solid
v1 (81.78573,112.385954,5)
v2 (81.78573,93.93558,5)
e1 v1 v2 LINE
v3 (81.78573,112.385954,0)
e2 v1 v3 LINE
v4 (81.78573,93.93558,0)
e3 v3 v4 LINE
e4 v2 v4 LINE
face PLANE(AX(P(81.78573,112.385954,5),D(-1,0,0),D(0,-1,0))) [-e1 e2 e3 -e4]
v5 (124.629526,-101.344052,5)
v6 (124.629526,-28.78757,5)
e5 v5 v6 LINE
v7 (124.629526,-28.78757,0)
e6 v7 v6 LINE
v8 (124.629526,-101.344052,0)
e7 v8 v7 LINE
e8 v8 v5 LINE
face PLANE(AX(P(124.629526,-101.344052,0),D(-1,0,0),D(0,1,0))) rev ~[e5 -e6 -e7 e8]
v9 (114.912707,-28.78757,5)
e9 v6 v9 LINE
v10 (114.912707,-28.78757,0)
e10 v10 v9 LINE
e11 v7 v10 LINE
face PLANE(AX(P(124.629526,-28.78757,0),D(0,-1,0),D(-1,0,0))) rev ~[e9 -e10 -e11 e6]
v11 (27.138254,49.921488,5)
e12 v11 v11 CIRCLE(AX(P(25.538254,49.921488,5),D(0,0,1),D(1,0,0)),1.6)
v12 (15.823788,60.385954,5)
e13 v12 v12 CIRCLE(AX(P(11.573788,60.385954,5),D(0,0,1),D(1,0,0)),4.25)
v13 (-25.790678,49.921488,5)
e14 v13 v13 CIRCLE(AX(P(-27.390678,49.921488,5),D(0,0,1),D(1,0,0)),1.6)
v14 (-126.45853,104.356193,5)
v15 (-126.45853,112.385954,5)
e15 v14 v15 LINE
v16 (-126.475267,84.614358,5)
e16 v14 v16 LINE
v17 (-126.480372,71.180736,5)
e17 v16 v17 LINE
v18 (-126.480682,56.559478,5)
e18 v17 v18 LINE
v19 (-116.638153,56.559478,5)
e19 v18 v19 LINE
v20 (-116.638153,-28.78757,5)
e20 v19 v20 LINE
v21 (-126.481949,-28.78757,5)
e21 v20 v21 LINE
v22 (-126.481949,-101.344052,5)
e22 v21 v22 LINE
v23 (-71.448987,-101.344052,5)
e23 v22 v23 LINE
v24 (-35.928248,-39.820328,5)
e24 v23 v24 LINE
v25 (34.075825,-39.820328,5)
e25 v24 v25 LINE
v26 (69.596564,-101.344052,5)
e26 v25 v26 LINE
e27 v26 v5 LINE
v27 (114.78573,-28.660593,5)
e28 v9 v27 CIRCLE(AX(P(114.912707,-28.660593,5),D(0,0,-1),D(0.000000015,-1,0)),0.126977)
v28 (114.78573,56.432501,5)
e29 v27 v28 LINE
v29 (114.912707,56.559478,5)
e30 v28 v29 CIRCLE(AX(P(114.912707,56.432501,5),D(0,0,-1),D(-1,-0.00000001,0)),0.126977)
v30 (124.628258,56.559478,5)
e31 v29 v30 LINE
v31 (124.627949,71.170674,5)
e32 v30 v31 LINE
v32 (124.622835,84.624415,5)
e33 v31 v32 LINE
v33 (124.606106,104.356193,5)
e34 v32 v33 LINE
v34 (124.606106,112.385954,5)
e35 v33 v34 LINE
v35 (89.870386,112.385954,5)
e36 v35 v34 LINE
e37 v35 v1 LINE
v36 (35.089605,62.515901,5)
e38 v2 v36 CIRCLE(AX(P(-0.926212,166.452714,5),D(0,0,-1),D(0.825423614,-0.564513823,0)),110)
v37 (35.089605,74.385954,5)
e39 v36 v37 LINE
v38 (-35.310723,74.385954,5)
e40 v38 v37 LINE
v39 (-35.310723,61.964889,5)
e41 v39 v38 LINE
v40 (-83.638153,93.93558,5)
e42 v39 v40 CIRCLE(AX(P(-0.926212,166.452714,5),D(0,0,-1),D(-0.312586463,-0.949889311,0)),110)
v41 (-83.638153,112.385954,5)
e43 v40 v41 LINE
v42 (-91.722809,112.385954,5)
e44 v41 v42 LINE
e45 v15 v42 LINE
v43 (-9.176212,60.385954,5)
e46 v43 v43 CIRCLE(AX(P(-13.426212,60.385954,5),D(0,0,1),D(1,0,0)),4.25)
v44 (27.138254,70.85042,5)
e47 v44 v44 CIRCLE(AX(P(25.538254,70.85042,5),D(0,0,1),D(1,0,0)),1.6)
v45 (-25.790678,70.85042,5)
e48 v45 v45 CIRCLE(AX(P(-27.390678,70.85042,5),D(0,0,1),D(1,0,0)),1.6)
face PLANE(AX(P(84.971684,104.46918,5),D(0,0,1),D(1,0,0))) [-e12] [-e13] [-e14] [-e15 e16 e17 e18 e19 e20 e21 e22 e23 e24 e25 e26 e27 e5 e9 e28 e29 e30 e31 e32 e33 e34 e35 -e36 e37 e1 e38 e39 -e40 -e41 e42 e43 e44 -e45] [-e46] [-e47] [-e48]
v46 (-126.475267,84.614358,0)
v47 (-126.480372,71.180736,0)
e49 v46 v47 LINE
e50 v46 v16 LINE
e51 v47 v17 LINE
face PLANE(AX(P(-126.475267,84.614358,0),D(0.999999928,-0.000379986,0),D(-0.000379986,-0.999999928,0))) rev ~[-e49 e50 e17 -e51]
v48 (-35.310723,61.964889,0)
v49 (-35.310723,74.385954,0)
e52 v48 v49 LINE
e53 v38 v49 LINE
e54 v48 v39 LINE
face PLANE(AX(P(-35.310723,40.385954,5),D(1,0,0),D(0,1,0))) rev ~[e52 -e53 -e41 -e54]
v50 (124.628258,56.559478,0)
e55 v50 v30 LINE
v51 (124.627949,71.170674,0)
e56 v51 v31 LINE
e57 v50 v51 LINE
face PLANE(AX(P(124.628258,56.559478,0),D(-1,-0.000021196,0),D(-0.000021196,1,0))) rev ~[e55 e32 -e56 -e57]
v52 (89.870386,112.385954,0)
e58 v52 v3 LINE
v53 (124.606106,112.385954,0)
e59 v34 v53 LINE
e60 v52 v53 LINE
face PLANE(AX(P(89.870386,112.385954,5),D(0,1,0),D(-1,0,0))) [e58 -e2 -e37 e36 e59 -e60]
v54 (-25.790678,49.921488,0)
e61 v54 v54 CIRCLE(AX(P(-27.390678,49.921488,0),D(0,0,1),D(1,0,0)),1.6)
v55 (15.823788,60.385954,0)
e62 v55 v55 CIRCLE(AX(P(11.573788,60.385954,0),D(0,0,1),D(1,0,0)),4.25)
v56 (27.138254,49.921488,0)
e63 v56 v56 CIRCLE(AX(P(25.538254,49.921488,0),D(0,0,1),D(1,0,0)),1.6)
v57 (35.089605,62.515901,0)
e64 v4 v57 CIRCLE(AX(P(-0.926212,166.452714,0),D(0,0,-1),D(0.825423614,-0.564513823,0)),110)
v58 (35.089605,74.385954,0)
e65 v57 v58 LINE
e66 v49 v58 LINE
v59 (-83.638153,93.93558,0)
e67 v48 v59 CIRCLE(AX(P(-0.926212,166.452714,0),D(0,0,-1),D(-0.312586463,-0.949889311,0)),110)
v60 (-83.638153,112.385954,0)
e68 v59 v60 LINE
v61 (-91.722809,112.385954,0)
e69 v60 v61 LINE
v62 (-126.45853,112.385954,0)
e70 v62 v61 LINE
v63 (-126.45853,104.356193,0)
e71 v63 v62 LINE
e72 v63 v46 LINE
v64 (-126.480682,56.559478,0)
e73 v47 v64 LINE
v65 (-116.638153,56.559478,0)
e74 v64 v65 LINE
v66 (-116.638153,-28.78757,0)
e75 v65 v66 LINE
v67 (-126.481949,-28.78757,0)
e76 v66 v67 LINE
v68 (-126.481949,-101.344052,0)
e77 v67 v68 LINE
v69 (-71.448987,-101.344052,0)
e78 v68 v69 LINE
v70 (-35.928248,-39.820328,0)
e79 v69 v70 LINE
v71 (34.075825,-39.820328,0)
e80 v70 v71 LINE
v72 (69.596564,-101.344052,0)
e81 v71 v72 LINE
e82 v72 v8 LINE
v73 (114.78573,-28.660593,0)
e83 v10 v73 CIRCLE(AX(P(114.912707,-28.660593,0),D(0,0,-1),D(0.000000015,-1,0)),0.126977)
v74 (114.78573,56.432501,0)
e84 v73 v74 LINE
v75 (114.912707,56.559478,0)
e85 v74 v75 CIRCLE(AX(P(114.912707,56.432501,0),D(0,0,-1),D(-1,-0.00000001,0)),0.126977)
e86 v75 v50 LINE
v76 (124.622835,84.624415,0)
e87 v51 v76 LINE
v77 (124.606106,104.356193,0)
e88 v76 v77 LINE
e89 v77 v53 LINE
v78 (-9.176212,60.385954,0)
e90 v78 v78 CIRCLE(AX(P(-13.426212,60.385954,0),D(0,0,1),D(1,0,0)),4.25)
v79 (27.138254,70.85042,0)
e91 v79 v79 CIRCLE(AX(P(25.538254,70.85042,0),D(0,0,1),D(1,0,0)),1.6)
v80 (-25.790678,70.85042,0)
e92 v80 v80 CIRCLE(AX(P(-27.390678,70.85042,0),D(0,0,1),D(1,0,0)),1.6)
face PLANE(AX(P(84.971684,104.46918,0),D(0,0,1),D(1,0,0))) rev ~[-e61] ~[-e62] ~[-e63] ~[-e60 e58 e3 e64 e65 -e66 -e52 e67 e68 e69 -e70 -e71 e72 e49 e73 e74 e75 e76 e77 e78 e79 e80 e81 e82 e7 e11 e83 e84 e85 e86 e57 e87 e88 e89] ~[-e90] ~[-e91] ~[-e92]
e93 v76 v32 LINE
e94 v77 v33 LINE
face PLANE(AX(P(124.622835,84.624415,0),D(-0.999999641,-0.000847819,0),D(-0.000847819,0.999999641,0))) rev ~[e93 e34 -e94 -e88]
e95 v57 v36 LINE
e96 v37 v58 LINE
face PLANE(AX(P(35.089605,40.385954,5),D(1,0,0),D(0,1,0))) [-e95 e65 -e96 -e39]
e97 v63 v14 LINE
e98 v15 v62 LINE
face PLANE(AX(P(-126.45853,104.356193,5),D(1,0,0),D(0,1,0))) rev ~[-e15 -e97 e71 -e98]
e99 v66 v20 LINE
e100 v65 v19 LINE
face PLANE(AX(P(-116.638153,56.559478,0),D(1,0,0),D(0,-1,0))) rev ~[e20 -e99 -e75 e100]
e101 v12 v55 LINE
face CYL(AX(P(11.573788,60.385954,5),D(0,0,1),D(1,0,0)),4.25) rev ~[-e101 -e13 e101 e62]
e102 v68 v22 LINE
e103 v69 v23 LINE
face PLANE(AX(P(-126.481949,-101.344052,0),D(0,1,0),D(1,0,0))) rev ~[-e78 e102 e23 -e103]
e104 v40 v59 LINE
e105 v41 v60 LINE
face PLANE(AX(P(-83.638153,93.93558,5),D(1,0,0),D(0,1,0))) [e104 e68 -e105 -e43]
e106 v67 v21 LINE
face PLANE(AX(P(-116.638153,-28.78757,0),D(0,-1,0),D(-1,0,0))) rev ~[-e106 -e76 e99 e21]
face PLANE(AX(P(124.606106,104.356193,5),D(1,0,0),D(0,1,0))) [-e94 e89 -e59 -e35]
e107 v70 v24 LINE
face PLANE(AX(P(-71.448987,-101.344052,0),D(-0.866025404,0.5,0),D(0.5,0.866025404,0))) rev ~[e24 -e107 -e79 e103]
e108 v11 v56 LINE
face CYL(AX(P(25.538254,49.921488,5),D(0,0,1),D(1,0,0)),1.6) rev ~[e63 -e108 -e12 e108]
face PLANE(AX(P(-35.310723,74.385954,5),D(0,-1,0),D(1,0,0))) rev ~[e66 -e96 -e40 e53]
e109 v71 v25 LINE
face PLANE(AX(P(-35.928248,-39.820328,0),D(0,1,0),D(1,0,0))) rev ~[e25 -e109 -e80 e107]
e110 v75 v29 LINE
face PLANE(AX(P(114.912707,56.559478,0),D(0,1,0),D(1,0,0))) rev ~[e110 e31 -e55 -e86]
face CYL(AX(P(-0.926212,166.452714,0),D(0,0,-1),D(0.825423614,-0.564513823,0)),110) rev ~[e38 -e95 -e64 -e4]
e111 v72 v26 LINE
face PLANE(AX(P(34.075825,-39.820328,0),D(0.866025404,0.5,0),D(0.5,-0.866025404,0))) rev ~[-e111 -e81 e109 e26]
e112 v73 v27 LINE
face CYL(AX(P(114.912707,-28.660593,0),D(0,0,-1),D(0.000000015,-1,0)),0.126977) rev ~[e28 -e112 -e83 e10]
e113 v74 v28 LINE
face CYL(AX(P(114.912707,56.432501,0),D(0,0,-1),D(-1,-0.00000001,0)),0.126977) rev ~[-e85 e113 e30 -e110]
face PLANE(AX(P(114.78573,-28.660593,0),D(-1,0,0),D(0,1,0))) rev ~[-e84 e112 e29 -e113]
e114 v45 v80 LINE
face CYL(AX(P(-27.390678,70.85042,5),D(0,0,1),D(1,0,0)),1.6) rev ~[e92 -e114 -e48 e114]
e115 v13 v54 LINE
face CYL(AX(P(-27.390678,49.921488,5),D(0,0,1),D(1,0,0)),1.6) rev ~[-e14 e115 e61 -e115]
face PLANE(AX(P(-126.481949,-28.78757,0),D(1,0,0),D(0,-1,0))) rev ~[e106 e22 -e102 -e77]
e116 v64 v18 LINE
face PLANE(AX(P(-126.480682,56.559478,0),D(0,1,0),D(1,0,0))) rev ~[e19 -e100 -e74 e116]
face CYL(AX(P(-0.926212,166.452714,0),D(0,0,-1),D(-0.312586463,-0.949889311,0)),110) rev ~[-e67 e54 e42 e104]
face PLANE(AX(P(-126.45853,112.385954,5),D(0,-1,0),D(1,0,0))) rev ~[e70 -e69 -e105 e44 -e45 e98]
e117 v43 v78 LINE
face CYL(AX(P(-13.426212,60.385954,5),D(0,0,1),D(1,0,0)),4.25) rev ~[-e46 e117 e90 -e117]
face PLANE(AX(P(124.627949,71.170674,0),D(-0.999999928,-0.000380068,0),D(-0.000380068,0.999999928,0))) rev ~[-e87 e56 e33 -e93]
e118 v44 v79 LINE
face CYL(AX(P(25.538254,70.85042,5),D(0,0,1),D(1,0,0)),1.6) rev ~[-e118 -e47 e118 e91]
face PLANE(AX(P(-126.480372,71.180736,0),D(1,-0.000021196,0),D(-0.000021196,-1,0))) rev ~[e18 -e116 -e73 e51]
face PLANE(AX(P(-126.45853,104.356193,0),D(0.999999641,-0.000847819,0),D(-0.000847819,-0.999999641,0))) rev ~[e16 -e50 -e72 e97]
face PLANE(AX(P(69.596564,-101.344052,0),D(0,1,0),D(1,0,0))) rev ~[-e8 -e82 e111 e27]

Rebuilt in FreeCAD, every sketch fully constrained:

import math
import FreeCAD as App
import Part
import Sketcher
from FreeCAD import Vector
Q = App.Units.Quantity


def add_polygon(sketch, points):
    """Adds a closed chain of lines whose ends are joined by coincident constraints."""
    first, n = sketch.GeometryCount, len(points)
    for a, b in zip(points, points[1:] + points[:1]):
        sketch.addGeometry(Part.LineSegment(App.Vector(*a, 0), App.Vector(*b, 0)), False)
    for i in range(n):
        sketch.addConstraint(Sketcher.Constraint("Coincident", first + i, 2, first + (i + 1) % n, 1))

doc = App.newDocument("Part")
body = doc.addObject("PartDesign::Body", "Body")

# Sketch on XY plane
sketch1 = body.newObject("Sketcher::SketchObject", "Sketch")
sketch1.AttachmentSupport = (doc.getObject("XY_Plane"), [""])
sketch1.MapMode = "FlatFace"
sketch1.addGeometry([
    Part.LineSegment(Vector(-91.72, 104.36, 0), Vector(-126.46, 104.36, 0)),  # 0
    Part.LineSegment(Vector(-126.46, 104.36, 0), Vector(-126.48, 84.61, 0)),  # 1
    Part.LineSegment(Vector(-126.48, 84.61, 0), Vector(-126.48, 71.18, 0)),  # 2
    Part.LineSegment(Vector(-126.48, 71.18, 0), Vector(-126.48, 56.56, 0)),  # 3
    Part.LineSegment(Vector(-126.48, 56.56, 0), Vector(-116.64, 56.56, 0)),  # 4
    Part.LineSegment(Vector(-116.64, 56.56, 0), Vector(-116.64, -28.79, 0)),  # 5
    Part.LineSegment(Vector(-116.64, -28.79, 0), Vector(-126.48, -28.79, 0)),  # 6
    Part.LineSegment(Vector(-126.48, -28.79, 0), Vector(-126.48, -101.34, 0)),  # 7
    Part.LineSegment(Vector(-126.48, -101.34, 0), Vector(-71.45, -101.34, 0)),  # 8
    Part.LineSegment(Vector(-71.45, -101.34, 0), Vector(-35.93, -39.82, 0)),  # 9
    Part.LineSegment(Vector(-35.93, -39.82, 0), Vector(34.08, -39.82, 0)),  # 10
    Part.LineSegment(Vector(34.08, -39.82, 0), Vector(69.6, -101.34, 0)),  # 11
    Part.LineSegment(Vector(69.6, -101.34, 0), Vector(124.63, -101.34, 0)),  # 12
    Part.LineSegment(Vector(124.63, -101.34, 0), Vector(124.63, -28.79, 0)),  # 13
    Part.LineSegment(Vector(124.63, -28.79, 0), Vector(114.91, -28.79, 0)),  # 14
    Part.ArcOfCircle(Part.Circle(Vector(114.91, -28.66, 0), Vector(0, 0, 1), 0.13), math.radians(180), math.radians(270)),  # 15
    Part.LineSegment(Vector(114.79, -28.66, 0), Vector(114.79, 56.43, 0)),  # 16
    Part.ArcOfCircle(Part.Circle(Vector(114.91, 56.43, 0), Vector(0, 0, 1), 0.13), math.radians(90), math.radians(180)),  # 17
    Part.LineSegment(Vector(114.91, 56.56, 0), Vector(124.63, 56.56, 0)),  # 18
    Part.LineSegment(Vector(124.63, 56.56, 0), Vector(124.63, 71.17, 0)),  # 19
    Part.LineSegment(Vector(124.63, 71.17, 0), Vector(124.62, 84.62, 0)),  # 20
    Part.LineSegment(Vector(124.62, 84.62, 0), Vector(124.61, 104.36, 0)),  # 21
    Part.LineSegment(Vector(124.61, 104.36, 0), Vector(89.87, 104.36, 0)),  # 22
    Part.ArcOfCircle(Part.Circle(Vector(-0.93, 166.45, 0), Vector(0, 0, 1), 110), math.radians(-71), math.radians(-34)),  # 23
    Part.LineSegment(Vector(35.09, 62.52, 0), Vector(35.09, 40.39, 0)),  # 24
    Part.LineSegment(Vector(35.09, 40.39, 0), Vector(-35.31, 40.39, 0)),  # 25
    Part.LineSegment(Vector(-35.31, 40.39, 0), Vector(-35.31, 61.96, 0)),  # 26
    Part.ArcOfCircle(Part.Circle(Vector(-0.93, 166.45, 0), Vector(0, 0, 1), 110), math.radians(-146), math.radians(-108)),  # 27
], False)
sketch1.addConstraint([
    Sketcher.Constraint("Coincident", 0, 2, 1, 1),
    Sketcher.Constraint("Coincident", 1, 2, 2, 1),
    Sketcher.Constraint("Coincident", 2, 2, 3, 1),
    Sketcher.Constraint("Coincident", 3, 2, 4, 1),
    Sketcher.Constraint("Coincident", 4, 2, 5, 1),
    Sketcher.Constraint("Coincident", 5, 2, 6, 1),
    Sketcher.Constraint("Coincident", 6, 2, 7, 1),
    Sketcher.Constraint("Coincident", 7, 2, 8, 1),
    Sketcher.Constraint("Coincident", 8, 2, 9, 1),
    Sketcher.Constraint("Coincident", 9, 2, 10, 1),
    Sketcher.Constraint("Coincident", 10, 2, 11, 1),
    Sketcher.Constraint("Coincident", 11, 2, 12, 1),
    Sketcher.Constraint("Coincident", 12, 2, 13, 1),
    Sketcher.Constraint("Coincident", 13, 2, 14, 1),
    Sketcher.Constraint("Tangent", 14, 2, 15, 2),
    Sketcher.Constraint("Tangent", 15, 1, 16, 1),
    Sketcher.Constraint("Tangent", 16, 2, 17, 2),
    Sketcher.Constraint("Tangent", 17, 1, 18, 1),
    Sketcher.Constraint("Coincident", 18, 2, 19, 1),
    Sketcher.Constraint("Coincident", 19, 2, 20, 1),
    Sketcher.Constraint("Coincident", 20, 2, 21, 1),
    Sketcher.Constraint("Coincident", 21, 2, 22, 1),
    Sketcher.Constraint("Coincident", 22, 2, 23, 2),
    Sketcher.Constraint("Coincident", 23, 1, 24, 1),
    Sketcher.Constraint("Coincident", 24, 2, 25, 1),
    Sketcher.Constraint("Coincident", 25, 2, 26, 1),
    Sketcher.Constraint("Coincident", 26, 2, 27, 2),
    Sketcher.Constraint("Coincident", 27, 1, 0, 1),
    Sketcher.Constraint("Horizontal", 0),
    Sketcher.Constraint("Horizontal", 4),
    Sketcher.Constraint("Vertical", 5),
    Sketcher.Constraint("Horizontal", 6),
    Sketcher.Constraint("Vertical", 7),
    Sketcher.Constraint("Horizontal", 8),
    Sketcher.Constraint("Horizontal", 10),
    Sketcher.Constraint("Horizontal", 12),
    Sketcher.Constraint("Vertical", 13),
    Sketcher.Constraint("Horizontal", 14),
    Sketcher.Constraint("Vertical", 16),
    Sketcher.Constraint("Horizontal", 18),
    Sketcher.Constraint("Horizontal", 22),
    Sketcher.Constraint("Vertical", 24),
    Sketcher.Constraint("Horizontal", 25),
    Sketcher.Constraint("Vertical", 26),
    Sketcher.Constraint("Coincident", 27, 3, 23, 3),
    Sketcher.Constraint("Equal", 15, 17),
    Sketcher.Constraint("Equal", 23, 27),
    Sketcher.Constraint("Horizontal", 8, 2, 11, 2),
    Sketcher.Constraint("Horizontal", 6, 2, 13, 2),
    Sketcher.Constraint("Horizontal", 4, 2, 17, 1),
    Sketcher.Constraint("Horizontal", 0, 2, 21, 2),
    Sketcher.Constraint("Equal", 8, 12),
    Sketcher.Constraint("Equal", 0, 22),
    Sketcher.Constraint("Equal", 9, 11),
    Sketcher.Constraint("Radius", 23, Q("110 mm")),
    Sketcher.Constraint("Angle", 9, Q("60 deg")),
    Sketcher.Constraint("Radius", 15, Q("0.126977 mm")),
    Sketcher.Constraint("DistanceX", 0, 2, 0, 1, Q("34.73572 mm")),
    Sketcher.Constraint("DistanceX", 4, 1, 4, 2, Q("9.842528 mm")),
    Sketcher.Constraint("DistanceX", 14, 2, 14, 1, Q("9.716819 mm")),
    Sketcher.Constraint("DistanceX", 18, 1, 18, 2, Q("9.715551 mm")),
    Sketcher.Constraint("DistanceY", 5, 2, 5, 1, Q("85.347048 mm")),
    Sketcher.Constraint("DistanceY", 7, 2, 7, 1, Q("72.556482 mm")),
    Sketcher.Constraint("DistanceY", -1, 1, 17, 3, Q("56.432501 mm")),
    Sketcher.Constraint("DistanceY", -1, 1, 23, 1, Q("62.515901 mm")),
    Sketcher.Constraint("DistanceX", 6, 2, 9, 2, Q("90.553701 mm")),
    Sketcher.Constraint("DistanceX", 17, 1, 21, 2, Q("9.693399 mm")),
    Sketcher.Constraint("Distance", 1, Q("19.741842 mm")),
    Sketcher.Constraint("DistanceX", 6, 2, 6, 1, Q("9.843796 mm")),
    Sketcher.Constraint("DistanceX", 8, 1, 8, 2, Q("55.032962 mm")),
    Sketcher.Constraint("DistanceX", 10, 1, 10, 2, Q("70.004073 mm")),
    Sketcher.Constraint("DistanceX", 25, 2, 25, 1, Q("70.400327 mm")),
    Sketcher.Constraint("DistanceY", 24, 2, 24, 1, Q("22.129947 mm")),
    Sketcher.Constraint("DistanceY", 26, 1, 26, 2, Q("21.578935 mm")),
    Sketcher.Constraint("DistanceX", 23, 3, -1, 1, Q("0.926212 mm")),
    Sketcher.Constraint("DistanceX", 0, 2, -1, 1, Q("126.45853 mm")),
    Sketcher.Constraint("DistanceX", 2, 2, -1, 1, Q("126.480372 mm")),
    Sketcher.Constraint("DistanceX", -1, 1, 19, 2, Q("124.627949 mm")),
    Sketcher.Constraint("DistanceY", 19, 2, 20, 2, Q("13.453741 mm")),
    Sketcher.Constraint("DistanceX", 17, 1, 20, 2, Q("9.710128 mm")),
    Sketcher.Constraint("DistanceY", 20, 2, 21, 2, Q("19.731778 mm")),
    Sketcher.Constraint("Distance", 2, Q("13.433623 mm")),
    Sketcher.Constraint("DistanceX", 1, 2, -1, 1, Q("126.475267 mm")),
])
pad1 = body.newObject("PartDesign::Pad", "Pad")
pad1.Profile = sketch1
pad1.Length = 5

# Sketch on XY plane
sketch2 = body.newObject("Sketcher::SketchObject", "Sketch001")
sketch2.AttachmentSupport = (doc.getObject("XY_Plane"), [""])
sketch2.MapMode = "FlatFace"
sketch2.AttachmentOffset = App.Placement(Vector(0, 0, 5), App.Rotation())
add_polygon(sketch2, [(-35.3, 74.4), (-35.3, 40.4), (35.1, 40.4), (35.1, 74.4)])  # lines 0-3
sketch2.addGeometry(Part.Circle(Vector(-27.4, 49.9, 0), Vector(0, 0, 1), 1.6), False)  # 4
sketch2.addGeometry(Part.Circle(Vector(25.5, 49.9, 0), Vector(0, 0, 1), 1.6), False)  # 5
sketch2.addGeometry(Part.Circle(Vector(-13.4, 60.4, 0), Vector(0, 0, 1), 4.2), False)  # 6
sketch2.addGeometry(Part.Circle(Vector(-27.4, 70.9, 0), Vector(0, 0, 1), 1.6), False)  # 7
sketch2.addGeometry(Part.Circle(Vector(11.6, 60.4, 0), Vector(0, 0, 1), 4.2), False)  # 8
sketch2.addGeometry(Part.Circle(Vector(25.5, 70.9, 0), Vector(0, 0, 1), 1.6), False)  # 9
sketch2.addConstraint([
    Sketcher.Constraint("Vertical", 0),
    Sketcher.Constraint("Horizontal", 1),
    Sketcher.Constraint("Vertical", 2),
    Sketcher.Constraint("Horizontal", 3),
    Sketcher.Constraint("Equal", 4, 5),
    Sketcher.Constraint("Equal", 5, 7),
    Sketcher.Constraint("Equal", 6, 8),
    Sketcher.Constraint("Equal", 7, 9),
    Sketcher.Constraint("Horizontal", 4, 3, 5, 3),
    Sketcher.Constraint("Horizontal", 6, 3, 8, 3),
    Sketcher.Constraint("Horizontal", 7, 3, 9, 3),
    Sketcher.Constraint("Vertical", 4, 3, 7, 3),
    Sketcher.Constraint("Vertical", 5, 3, 9, 3),
    Sketcher.Constraint("Diameter", 4, Q("3.2 mm")),
    Sketcher.Constraint("Diameter", 6, Q("8.5 mm")),
    Sketcher.Constraint("DistanceY", 0, 2, 0, 1, Q("34 mm")),
    Sketcher.Constraint("DistanceX", 6, 3, 8, 3, Q("25 mm")),
    Sketcher.Constraint("DistanceY", 0, 2, 6, 3, Q("20 mm")),
    Sketcher.Constraint("DistanceX", 1, 1, 1, 2, Q("70.400327 mm")),
    Sketcher.Constraint("DistanceY", -1, 1, 4, 3, Q("49.921488 mm")),
    Sketcher.Constraint("DistanceX", 6, 3, -1, 1, Q("13.426212 mm")),
    Sketcher.Constraint("DistanceY", -1, 1, 7, 3, Q("70.85042 mm")),
    Sketcher.Constraint("DistanceX", 0, 2, 6, 3, Q("21.884511 mm")),
    Sketcher.Constraint("DistanceX", 5, 3, 1, 2, Q("9.55135 mm")),
    Sketcher.Constraint("DistanceX", 4, 3, -1, 1, Q("27.390678 mm")),
    Sketcher.Constraint("DistanceY", -1, 1, 6, 3, Q("60.385954 mm")),
])
pad2 = body.newObject("PartDesign::Pad", "Pad001")
pad2.Profile = sketch2
pad2.Length = 5
pad2.Reversed = True

# Sketch on XY plane
sketch3 = body.newObject("Sketcher::SketchObject", "Sketch002")
sketch3.AttachmentSupport = (doc.getObject("XY_Plane"), [""])
sketch3.MapMode = "FlatFace"
sketch3.AttachmentOffset = App.Placement(Vector(0, 0, 5), App.Rotation())
add_polygon(sketch3, [(-126, 112), (-126, 104), (-92, 104), (-92, 112)])  # lines 0-3
add_polygon(sketch3, [(90, 112), (90, 104), (125, 104), (125, 112)])  # lines 4-7
sketch3.addConstraint([
    Sketcher.Constraint("Vertical", 0),
    Sketcher.Constraint("Horizontal", 1),
    Sketcher.Constraint("Vertical", 2),
    Sketcher.Constraint("Horizontal", 3),
    Sketcher.Constraint("Vertical", 4),
    Sketcher.Constraint("Horizontal", 5),
    Sketcher.Constraint("Vertical", 6),
    Sketcher.Constraint("Horizontal", 7),
    Sketcher.Constraint("Horizontal", 1, 2, 4, 2),
    Sketcher.Constraint("Horizontal", 3, 2, 6, 2),
    Sketcher.Constraint("Equal", 3, 5),
    Sketcher.Constraint("DistanceX", 1, 1, 1, 2, Q("34.73572 mm")),
    Sketcher.Constraint("DistanceY", 0, 2, 0, 1, Q("8.029761 mm")),
    Sketcher.Constraint("DistanceX", 0, 2, -1, 1, Q("126.45853 mm")),
    Sketcher.Constraint("DistanceY", -1, 1, 0, 2, Q("104.356193 mm")),
    Sketcher.Constraint("DistanceX", -1, 1, 4, 2, Q("89.870386 mm")),
])
pad3 = body.newObject("PartDesign::Pad", "Pad002")
pad3.Profile = sketch3
pad3.Length = 5
pad3.Reversed = True

# Sketch on XY plane
sketch4 = body.newObject("Sketcher::SketchObject", "Sketch003")
sketch4.AttachmentSupport = (doc.getObject("XY_Plane"), [""])
sketch4.MapMode = "FlatFace"
sketch4.AttachmentOffset = App.Placement(Vector(0, 0, 5), App.Rotation())
sketch4.addGeometry([
    Part.LineSegment(Vector(90, 112, 0), Vector(82, 112, 0)),  # 0
    Part.LineSegment(Vector(82, 112, 0), Vector(82, 94, 0)),  # 1
    Part.ArcOfCircle(Part.Circle(Vector(-1, 166, 0), Vector(0, 0, 1), 110), math.radians(-41.24), math.radians(-34.37)),  # 2
    Part.LineSegment(Vector(90, 104, 0), Vector(90, 112, 0)),  # 3
    Part.LineSegment(Vector(-92, 112, 0), Vector(-92, 104, 0)),  # 4
    Part.ArcOfCircle(Part.Circle(Vector(-1, 166, 0), Vector(0, 0, 1), 110), math.radians(-145.63), math.radians(-138.76)),  # 5
    Part.LineSegment(Vector(-84, 94, 0), Vector(-84, 112, 0)),  # 6
    Part.LineSegment(Vector(-84, 112, 0), Vector(-92, 112, 0)),  # 7
], False)
sketch4.addConstraint([
    Sketcher.Constraint("Coincident", 0, 2, 1, 1),
    Sketcher.Constraint("Coincident", 1, 2, 2, 1),
    Sketcher.Constraint("Coincident", 2, 2, 3, 1),
    Sketcher.Constraint("Coincident", 3, 2, 0, 1),
    Sketcher.Constraint("Coincident", 4, 2, 5, 1),
    Sketcher.Constraint("Coincident", 5, 2, 6, 1),
    Sketcher.Constraint("Coincident", 6, 2, 7, 1),
    Sketcher.Constraint("Coincident", 7, 2, 4, 1),
    Sketcher.Constraint("Horizontal", 0),
    Sketcher.Constraint("Vertical", 1),
    Sketcher.Constraint("Vertical", 3),
    Sketcher.Constraint("Vertical", 4),
    Sketcher.Constraint("Vertical", 6),
    Sketcher.Constraint("Horizontal", 7),
    Sketcher.Constraint("Coincident", 5, 3, 2, 3),
    Sketcher.Constraint("Equal", 2, 5),
    Sketcher.Constraint("Horizontal", 2, 2, 4, 2),
    Sketcher.Constraint("Horizontal", 1, 2, 5, 2),
    Sketcher.Constraint("Horizontal", 3, 2, 6, 2),
    Sketcher.Constraint("Radius", 2, Q("110 mm")),
    Sketcher.Constraint("DistanceY", 3, 1, 3, 2, Q("8.029761 mm")),
    Sketcher.Constraint("DistanceX", 0, 2, 0, 1, Q("8.084656 mm")),
    Sketcher.Constraint("DistanceY", 1, 2, 1, 1, Q("18.450374 mm")),
    Sketcher.Constraint("DistanceX", 2, 3, -1, 1, Q("0.926212 mm")),
    Sketcher.Constraint("DistanceY", -1, 1, 1, 2, Q("93.93558 mm")),
])
pad4 = body.newObject("PartDesign::Pad", "Pad003")
pad4.Profile = sketch4
pad4.Length = 5
pad4.Reversed = True

doc.recompute()
